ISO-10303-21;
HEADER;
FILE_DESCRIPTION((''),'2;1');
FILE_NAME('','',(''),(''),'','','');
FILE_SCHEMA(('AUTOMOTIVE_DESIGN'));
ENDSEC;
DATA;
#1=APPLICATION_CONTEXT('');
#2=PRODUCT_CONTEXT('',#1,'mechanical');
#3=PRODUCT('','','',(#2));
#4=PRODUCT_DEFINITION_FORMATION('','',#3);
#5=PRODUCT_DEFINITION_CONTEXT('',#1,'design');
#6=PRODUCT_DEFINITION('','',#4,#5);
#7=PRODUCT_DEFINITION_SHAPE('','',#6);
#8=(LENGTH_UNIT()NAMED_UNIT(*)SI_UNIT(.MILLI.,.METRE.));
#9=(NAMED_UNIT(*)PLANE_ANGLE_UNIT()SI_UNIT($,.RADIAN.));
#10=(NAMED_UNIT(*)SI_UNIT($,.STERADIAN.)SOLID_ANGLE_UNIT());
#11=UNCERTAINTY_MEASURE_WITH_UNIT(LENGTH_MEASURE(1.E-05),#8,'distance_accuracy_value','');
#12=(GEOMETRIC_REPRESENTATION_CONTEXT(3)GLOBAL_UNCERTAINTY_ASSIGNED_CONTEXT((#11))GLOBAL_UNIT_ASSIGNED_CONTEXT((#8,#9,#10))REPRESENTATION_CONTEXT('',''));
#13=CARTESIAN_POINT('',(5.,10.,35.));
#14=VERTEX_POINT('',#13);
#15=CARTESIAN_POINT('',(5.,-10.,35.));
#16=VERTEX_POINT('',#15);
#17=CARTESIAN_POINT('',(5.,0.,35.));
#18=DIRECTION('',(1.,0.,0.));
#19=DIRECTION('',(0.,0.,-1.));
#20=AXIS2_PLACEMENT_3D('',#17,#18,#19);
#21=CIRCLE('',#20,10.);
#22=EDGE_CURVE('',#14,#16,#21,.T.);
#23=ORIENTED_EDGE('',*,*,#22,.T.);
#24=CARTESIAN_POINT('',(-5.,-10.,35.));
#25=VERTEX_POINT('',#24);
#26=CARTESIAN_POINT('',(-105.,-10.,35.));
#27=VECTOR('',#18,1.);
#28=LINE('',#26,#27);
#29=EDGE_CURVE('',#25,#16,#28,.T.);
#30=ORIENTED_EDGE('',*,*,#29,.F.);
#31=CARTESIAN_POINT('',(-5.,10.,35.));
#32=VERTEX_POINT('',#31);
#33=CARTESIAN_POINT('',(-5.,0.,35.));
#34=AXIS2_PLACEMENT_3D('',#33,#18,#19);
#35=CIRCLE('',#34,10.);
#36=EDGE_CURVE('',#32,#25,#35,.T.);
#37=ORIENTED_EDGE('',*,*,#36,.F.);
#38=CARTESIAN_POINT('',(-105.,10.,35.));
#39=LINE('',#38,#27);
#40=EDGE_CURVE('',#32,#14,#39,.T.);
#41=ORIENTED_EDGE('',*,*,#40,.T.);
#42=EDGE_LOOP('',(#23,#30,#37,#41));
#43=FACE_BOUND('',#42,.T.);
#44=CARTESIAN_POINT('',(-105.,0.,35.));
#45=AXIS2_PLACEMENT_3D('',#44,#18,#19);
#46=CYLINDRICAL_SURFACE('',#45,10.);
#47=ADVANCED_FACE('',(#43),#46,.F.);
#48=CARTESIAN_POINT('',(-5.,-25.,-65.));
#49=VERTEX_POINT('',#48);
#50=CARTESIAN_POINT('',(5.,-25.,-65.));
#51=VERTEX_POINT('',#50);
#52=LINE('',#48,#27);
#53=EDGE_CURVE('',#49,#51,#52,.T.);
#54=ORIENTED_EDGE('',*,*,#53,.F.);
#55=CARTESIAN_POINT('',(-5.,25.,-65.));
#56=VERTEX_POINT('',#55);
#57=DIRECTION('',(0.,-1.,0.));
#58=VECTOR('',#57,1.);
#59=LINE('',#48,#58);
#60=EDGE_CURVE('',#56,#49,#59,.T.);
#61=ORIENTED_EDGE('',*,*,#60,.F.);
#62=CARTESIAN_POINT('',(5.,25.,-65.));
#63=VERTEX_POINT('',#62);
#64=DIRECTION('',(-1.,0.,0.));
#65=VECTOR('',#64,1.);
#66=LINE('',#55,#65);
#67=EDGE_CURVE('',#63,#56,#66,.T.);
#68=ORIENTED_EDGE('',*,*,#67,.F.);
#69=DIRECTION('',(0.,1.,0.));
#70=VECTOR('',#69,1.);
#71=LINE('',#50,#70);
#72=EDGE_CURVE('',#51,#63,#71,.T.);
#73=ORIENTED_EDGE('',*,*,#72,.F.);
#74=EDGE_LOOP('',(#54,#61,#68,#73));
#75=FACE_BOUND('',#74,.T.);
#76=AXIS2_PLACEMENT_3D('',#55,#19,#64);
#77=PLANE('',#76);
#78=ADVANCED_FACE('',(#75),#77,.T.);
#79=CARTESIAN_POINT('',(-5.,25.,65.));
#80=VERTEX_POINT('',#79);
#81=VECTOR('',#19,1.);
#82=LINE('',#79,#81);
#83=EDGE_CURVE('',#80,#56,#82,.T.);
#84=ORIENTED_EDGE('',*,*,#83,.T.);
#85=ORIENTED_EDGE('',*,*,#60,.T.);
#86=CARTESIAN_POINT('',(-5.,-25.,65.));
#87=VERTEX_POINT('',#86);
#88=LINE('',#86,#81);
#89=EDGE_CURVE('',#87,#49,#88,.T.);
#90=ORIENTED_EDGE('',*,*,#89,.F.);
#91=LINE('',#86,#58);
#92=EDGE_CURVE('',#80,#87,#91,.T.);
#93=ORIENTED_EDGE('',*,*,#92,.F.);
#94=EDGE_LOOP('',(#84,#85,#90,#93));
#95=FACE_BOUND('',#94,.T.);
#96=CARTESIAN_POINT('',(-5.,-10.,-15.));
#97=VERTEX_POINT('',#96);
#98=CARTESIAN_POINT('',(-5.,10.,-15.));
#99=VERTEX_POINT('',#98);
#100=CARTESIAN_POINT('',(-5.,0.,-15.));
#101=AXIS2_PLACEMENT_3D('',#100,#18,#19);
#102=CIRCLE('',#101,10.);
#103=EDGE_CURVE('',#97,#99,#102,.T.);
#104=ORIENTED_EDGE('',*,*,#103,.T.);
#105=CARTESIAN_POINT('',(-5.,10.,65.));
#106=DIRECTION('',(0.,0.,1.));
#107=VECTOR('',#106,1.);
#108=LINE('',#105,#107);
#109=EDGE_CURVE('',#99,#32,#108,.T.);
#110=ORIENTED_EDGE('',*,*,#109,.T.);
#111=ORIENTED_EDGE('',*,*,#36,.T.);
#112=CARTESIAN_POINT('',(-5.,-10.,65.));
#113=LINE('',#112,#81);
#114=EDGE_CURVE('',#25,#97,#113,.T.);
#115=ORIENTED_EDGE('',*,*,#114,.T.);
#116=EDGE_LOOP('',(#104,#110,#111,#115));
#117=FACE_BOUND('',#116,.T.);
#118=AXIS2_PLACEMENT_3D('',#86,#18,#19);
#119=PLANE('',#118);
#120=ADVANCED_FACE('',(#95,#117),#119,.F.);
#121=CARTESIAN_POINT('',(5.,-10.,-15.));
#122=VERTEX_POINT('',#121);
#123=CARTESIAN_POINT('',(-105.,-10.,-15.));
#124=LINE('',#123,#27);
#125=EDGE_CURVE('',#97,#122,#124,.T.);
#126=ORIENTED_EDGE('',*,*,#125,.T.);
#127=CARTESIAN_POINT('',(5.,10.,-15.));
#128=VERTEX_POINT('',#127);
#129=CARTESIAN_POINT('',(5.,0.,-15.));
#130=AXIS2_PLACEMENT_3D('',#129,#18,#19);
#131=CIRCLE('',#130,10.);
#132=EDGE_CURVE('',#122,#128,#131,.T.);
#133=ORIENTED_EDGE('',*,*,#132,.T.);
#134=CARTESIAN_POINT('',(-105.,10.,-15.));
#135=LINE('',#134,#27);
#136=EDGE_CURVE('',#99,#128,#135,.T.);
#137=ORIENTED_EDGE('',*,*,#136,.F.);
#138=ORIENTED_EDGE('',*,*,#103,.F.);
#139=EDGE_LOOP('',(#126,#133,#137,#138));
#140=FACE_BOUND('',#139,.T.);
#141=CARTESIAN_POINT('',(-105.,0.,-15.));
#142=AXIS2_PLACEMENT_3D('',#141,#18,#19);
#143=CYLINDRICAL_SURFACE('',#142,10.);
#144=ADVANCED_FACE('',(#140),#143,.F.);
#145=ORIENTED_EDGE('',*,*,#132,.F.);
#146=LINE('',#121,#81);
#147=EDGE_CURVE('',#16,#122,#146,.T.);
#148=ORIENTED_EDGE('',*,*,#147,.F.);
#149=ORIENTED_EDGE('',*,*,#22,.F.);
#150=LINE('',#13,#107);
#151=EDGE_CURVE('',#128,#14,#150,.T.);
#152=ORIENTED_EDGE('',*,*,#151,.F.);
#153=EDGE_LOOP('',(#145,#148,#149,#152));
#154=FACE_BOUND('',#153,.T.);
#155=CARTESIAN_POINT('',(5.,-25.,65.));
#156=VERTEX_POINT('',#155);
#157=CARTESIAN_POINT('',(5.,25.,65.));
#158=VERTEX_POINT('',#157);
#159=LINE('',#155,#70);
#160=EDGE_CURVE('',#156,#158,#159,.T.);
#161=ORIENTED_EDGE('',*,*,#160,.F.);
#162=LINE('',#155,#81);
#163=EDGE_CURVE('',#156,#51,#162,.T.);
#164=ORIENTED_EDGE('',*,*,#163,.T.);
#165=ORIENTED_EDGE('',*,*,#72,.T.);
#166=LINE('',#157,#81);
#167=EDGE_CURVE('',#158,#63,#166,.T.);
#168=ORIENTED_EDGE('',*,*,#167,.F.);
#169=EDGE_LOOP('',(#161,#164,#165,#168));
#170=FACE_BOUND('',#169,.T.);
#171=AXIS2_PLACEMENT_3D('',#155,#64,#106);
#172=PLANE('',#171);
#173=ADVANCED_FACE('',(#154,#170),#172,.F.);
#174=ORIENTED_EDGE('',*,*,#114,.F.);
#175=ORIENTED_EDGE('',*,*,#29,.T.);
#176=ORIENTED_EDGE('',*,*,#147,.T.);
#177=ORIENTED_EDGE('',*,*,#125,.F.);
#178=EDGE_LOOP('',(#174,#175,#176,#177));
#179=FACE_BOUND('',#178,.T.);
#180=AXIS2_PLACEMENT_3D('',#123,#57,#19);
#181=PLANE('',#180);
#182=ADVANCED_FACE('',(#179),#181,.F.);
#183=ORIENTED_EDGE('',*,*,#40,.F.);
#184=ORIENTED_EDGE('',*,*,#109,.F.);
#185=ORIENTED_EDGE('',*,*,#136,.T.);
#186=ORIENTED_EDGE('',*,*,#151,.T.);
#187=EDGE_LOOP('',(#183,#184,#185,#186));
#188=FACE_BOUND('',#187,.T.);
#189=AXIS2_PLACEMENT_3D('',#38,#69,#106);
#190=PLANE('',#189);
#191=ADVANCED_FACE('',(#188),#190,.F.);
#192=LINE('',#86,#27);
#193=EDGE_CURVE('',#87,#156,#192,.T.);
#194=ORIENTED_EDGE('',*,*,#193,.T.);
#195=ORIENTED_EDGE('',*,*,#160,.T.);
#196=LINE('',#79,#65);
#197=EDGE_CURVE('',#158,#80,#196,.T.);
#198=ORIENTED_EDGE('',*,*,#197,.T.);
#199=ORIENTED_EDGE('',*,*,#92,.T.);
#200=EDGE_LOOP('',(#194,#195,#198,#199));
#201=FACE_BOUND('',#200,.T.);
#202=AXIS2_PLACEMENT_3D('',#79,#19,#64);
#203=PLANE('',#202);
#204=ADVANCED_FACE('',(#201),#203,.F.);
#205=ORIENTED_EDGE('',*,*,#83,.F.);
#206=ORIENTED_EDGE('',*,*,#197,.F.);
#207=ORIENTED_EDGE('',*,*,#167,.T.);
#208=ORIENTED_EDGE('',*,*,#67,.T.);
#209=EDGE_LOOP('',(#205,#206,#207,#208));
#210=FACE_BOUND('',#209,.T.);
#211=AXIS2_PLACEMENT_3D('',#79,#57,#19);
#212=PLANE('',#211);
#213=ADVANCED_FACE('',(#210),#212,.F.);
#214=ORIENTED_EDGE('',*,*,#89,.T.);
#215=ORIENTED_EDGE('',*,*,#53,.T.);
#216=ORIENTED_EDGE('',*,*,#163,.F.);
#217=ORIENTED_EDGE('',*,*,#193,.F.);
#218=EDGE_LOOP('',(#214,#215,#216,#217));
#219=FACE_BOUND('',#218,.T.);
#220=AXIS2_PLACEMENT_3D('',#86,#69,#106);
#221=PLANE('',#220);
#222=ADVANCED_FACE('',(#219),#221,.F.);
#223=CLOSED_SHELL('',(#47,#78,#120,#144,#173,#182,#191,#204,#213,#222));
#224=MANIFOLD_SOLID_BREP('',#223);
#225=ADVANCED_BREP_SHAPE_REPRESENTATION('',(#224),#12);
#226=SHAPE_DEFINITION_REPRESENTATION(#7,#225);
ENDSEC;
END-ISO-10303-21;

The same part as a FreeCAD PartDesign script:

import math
import FreeCAD as App
import Part
import Sketcher

V = App.Vector
Q = App.Units.Quantity

doc = App.newDocument("Part")
params = doc.addObject("Spreadsheet::Sheet", "Params")
for row, (alias, value) in enumerate([
    ("sketch1_width", "10 mm"),
    ("sketch1_height", "50 mm"),
    ("pad1_length", "130 mm"),
    ("sketch2_radius", "10 mm"),
    ("sketch2_height", "50 mm"),
    ("pocket1_length", "110 mm"),
], start=1):
    params.set(f"A{row}", alias)
    params.set(f"B{row}", "=" + value)
    params.setAlias(f"B{row}", alias)

body = doc.addObject("PartDesign::Body", "Body")

# Sketch on XY plane
sketch1 = body.newObject("Sketcher::SketchObject", "Sketch")
sketch1.AttachmentSupport = (doc.getObject("XY_Plane"), [""])
sketch1.MapMode = "FlatFace"
sketch1.addGeometry([
    Part.LineSegment(V(-5, 25, 0), V(-5, -25, 0)),
    Part.LineSegment(V(-5, -25, 0), V(5, -25, 0)),
    Part.LineSegment(V(5, -25, 0), V(5, 25, 0)),
    Part.LineSegment(V(5, 25, 0), V(-5, 25, 0)),
], False)
sketch1.addConstraint([
    Sketcher.Constraint("Coincident", 0, 2, 1, 1),
    Sketcher.Constraint("Coincident", 1, 2, 2, 1),
    Sketcher.Constraint("Coincident", 2, 2, 3, 1),
    Sketcher.Constraint("Coincident", 3, 2, 0, 1),
    Sketcher.Constraint("Vertical", 0),
    Sketcher.Constraint("Horizontal", 1),
    Sketcher.Constraint("Vertical", 2),
    Sketcher.Constraint("Horizontal", 3),
    Sketcher.Constraint("Symmetric", 0, 2, 2, 2, -1, 1),
    Sketcher.Constraint("DistanceX", 1, 1, 1, 2, Q("10 mm")),
    Sketcher.Constraint("DistanceY", 0, 2, 0, 1, Q("50 mm")),
])
sketch1.setExpression("Constraints[9]", "Params.sketch1_width")
sketch1.setExpression("Constraints[10]", "Params.sketch1_height")
pad1 = body.newObject("PartDesign::Pad", "Pad")
pad1.Profile = sketch1
pad1.setExpression("Length", "Params.pad1_length")
pad1.Midplane = True

# Sketch on YZ plane
sketch2 = body.newObject("Sketcher::SketchObject", "Sketch001")
sketch2.AttachmentSupport = (doc.getObject("YZ_Plane"), [""])
sketch2.MapMode = "FlatFace"
sketch2.AttachmentOffset = App.Placement(V(0, 0, 5), App.Rotation())
sketch2.addGeometry([
    Part.LineSegment(V(10, -15, 0), V(10, 35, 0)),
    Part.ArcOfCircle(Part.Circle(V(0, 35, 0), V(0, 0, 1), 10), math.radians(0), math.radians(180)),
    Part.LineSegment(V(-10, 35, 0), V(-10, -15, 0)),
    Part.ArcOfCircle(Part.Circle(V(0, -15, 0), V(0, 0, 1), 10), math.radians(180), math.radians(360)),
], False)
sketch2.addConstraint([
    Sketcher.Constraint("Tangent", 0, 2, 1, 1),
    Sketcher.Constraint("Tangent", 1, 2, 2, 1),
    Sketcher.Constraint("Tangent", 2, 2, 3, 1),
    Sketcher.Constraint("Tangent", 3, 2, 0, 1),
    Sketcher.Constraint("Vertical", 0),
    Sketcher.Constraint("Vertical", 2),
    Sketcher.Constraint("PointOnObject", 1, 3, -2),
    Sketcher.Constraint("Radius", 1, Q("10 mm")),
    Sketcher.Constraint("DistanceY", 0, 1, 0, 2, Q("50 mm")),
    Sketcher.Constraint("DistanceY", -1, 1, 1, 3, Q("35 mm")),
])
sketch2.setExpression("Constraints[7]", "Params.sketch2_radius")
sketch2.setExpression("Constraints[8]", "Params.sketch2_height")
pocket1 = body.newObject("PartDesign::Pocket", "Pocket")
pocket1.Profile = sketch2
pocket1.setExpression("Length", "Params.pocket1_length")

doc.recompute()
